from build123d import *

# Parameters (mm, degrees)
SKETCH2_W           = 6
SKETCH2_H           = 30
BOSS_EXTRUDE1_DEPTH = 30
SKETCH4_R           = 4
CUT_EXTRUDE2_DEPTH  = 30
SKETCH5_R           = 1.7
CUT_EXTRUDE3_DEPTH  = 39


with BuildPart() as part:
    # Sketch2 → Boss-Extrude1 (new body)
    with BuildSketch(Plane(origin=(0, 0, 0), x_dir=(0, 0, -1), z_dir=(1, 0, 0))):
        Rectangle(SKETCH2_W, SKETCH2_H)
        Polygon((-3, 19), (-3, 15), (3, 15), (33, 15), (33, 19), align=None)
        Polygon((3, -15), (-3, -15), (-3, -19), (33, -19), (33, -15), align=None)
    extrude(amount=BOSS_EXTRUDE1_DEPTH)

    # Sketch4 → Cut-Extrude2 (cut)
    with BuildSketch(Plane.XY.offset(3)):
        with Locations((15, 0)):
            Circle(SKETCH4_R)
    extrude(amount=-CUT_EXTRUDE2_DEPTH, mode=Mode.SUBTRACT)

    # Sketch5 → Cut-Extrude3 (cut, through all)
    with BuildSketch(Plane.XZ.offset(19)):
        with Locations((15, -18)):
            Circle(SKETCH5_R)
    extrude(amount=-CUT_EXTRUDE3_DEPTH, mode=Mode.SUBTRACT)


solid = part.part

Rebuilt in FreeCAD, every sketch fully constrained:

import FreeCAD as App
import Part
import Sketcher
Q = App.Units.Quantity

doc = App.newDocument("Part")
body = doc.addObject("PartDesign::Body", "Body")

sketch1 = doc.addObject("Sketcher::SketchObject", "Sketch")
body.addObject(sketch1)
sketch1.AttachmentSupport = (doc.YZ_Plane, [""])
sketch1.MapMode = "FlatFace"
sketch1.addGeometry([
    Part.LineSegment(App.Vector(-15, -3, 0), App.Vector(15, -3, 0)),
    Part.LineSegment(App.Vector(15, -3, 0), App.Vector(15, -33, 0)),
    Part.LineSegment(App.Vector(15, -33, 0), App.Vector(19, -33, 0)),
    Part.LineSegment(App.Vector(19, -33, 0), App.Vector(19, 3, 0)),
    Part.LineSegment(App.Vector(19, 3, 0), App.Vector(-19, 3, 0)),
    Part.LineSegment(App.Vector(-19, 3, 0), App.Vector(-19, -33, 0)),
    Part.LineSegment(App.Vector(-19, -33, 0), App.Vector(-15, -33, 0)),
    Part.LineSegment(App.Vector(-15, -33, 0), App.Vector(-15, -3, 0)),
], False)
sketch1.addConstraint([
    Sketcher.Constraint("Coincident", 0, 2, 1, 1),
    Sketcher.Constraint("Coincident", 1, 2, 2, 1),
    Sketcher.Constraint("Coincident", 2, 2, 3, 1),
    Sketcher.Constraint("Coincident", 3, 2, 4, 1),
    Sketcher.Constraint("Coincident", 4, 2, 5, 1),
    Sketcher.Constraint("Coincident", 5, 2, 6, 1),
    Sketcher.Constraint("Coincident", 6, 2, 7, 1),
    Sketcher.Constraint("Coincident", 7, 2, 0, 1),
    Sketcher.Constraint("Horizontal", 0),
    Sketcher.Constraint("Vertical", 1),
    Sketcher.Constraint("Horizontal", 2),
    Sketcher.Constraint("Vertical", 3),
    Sketcher.Constraint("Horizontal", 4),
    Sketcher.Constraint("Vertical", 5),
    Sketcher.Constraint("Horizontal", 6),
    Sketcher.Constraint("Vertical", 7),
    Sketcher.Constraint("Symmetric", 2, 2, 5, 2, -2),
    Sketcher.Constraint("Equal", 2, 6),
    Sketcher.Constraint("Equal", 0, 1),
    Sketcher.Constraint("DistanceX", 0, 1, 0, 2, Q("30 mm")),
    Sketcher.Constraint("DistanceX", 2, 1, 2, 2, Q("4 mm")),
    Sketcher.Constraint("DistanceY", 3, 1, 3, 2, Q("36 mm")),
    Sketcher.Constraint("DistanceY", 0, 2, -1, 1, Q("3 mm")),
])
pad1 = doc.addObject("PartDesign::Pad", "Pad")
body.addObject(pad1)
pad1.Profile = sketch1
pad1.Length = 30

sketch2 = doc.addObject("Sketcher::SketchObject", "Sketch001")
body.addObject(sketch2)
sketch2.AttachmentSupport = (doc.XY_Plane, [""])
sketch2.MapMode = "FlatFace"
sketch2.AttachmentOffset = App.Placement(App.Vector(0, 0, 3), App.Rotation())
sketch2.addGeometry(Part.Circle(App.Vector(15, 0, 0), App.Vector(0, 0, 1), 4), False)
sketch2.addConstraint([
    Sketcher.Constraint("PointOnObject", 0, 3, -1),
    Sketcher.Constraint("Diameter", 0, Q("8 mm")),
    Sketcher.Constraint("DistanceX", -1, 1, 0, 3, Q("15 mm")),
])
pocket1 = doc.addObject("PartDesign::Pocket", "Pocket")
body.addObject(pocket1)
pocket1.Profile = sketch2
pocket1.Length = 30

sketch3 = doc.addObject("Sketcher::SketchObject", "Sketch002")
body.addObject(sketch3)
sketch3.AttachmentSupport = (doc.XZ_Plane, [""])
sketch3.MapMode = "FlatFace"
sketch3.AttachmentOffset = App.Placement(App.Vector(0, 0, 19), App.Rotation())
sketch3.addGeometry(Part.Circle(App.Vector(15, -18, 0), App.Vector(0, 0, 1), 1.7), False)
sketch3.addConstraint([
    Sketcher.Constraint("Diameter", 0, Q("3.4 mm")),
    Sketcher.Constraint("DistanceX", -1, 1, 0, 3, Q("15 mm")),
    Sketcher.Constraint("DistanceY", 0, 3, -1, 1, Q("18 mm")),
])
pocket2 = doc.addObject("PartDesign::Pocket", "Pocket001")
body.addObject(pocket2)
pocket2.Profile = sketch3
pocket2.Type = "ThroughAll"

doc.recompute()
